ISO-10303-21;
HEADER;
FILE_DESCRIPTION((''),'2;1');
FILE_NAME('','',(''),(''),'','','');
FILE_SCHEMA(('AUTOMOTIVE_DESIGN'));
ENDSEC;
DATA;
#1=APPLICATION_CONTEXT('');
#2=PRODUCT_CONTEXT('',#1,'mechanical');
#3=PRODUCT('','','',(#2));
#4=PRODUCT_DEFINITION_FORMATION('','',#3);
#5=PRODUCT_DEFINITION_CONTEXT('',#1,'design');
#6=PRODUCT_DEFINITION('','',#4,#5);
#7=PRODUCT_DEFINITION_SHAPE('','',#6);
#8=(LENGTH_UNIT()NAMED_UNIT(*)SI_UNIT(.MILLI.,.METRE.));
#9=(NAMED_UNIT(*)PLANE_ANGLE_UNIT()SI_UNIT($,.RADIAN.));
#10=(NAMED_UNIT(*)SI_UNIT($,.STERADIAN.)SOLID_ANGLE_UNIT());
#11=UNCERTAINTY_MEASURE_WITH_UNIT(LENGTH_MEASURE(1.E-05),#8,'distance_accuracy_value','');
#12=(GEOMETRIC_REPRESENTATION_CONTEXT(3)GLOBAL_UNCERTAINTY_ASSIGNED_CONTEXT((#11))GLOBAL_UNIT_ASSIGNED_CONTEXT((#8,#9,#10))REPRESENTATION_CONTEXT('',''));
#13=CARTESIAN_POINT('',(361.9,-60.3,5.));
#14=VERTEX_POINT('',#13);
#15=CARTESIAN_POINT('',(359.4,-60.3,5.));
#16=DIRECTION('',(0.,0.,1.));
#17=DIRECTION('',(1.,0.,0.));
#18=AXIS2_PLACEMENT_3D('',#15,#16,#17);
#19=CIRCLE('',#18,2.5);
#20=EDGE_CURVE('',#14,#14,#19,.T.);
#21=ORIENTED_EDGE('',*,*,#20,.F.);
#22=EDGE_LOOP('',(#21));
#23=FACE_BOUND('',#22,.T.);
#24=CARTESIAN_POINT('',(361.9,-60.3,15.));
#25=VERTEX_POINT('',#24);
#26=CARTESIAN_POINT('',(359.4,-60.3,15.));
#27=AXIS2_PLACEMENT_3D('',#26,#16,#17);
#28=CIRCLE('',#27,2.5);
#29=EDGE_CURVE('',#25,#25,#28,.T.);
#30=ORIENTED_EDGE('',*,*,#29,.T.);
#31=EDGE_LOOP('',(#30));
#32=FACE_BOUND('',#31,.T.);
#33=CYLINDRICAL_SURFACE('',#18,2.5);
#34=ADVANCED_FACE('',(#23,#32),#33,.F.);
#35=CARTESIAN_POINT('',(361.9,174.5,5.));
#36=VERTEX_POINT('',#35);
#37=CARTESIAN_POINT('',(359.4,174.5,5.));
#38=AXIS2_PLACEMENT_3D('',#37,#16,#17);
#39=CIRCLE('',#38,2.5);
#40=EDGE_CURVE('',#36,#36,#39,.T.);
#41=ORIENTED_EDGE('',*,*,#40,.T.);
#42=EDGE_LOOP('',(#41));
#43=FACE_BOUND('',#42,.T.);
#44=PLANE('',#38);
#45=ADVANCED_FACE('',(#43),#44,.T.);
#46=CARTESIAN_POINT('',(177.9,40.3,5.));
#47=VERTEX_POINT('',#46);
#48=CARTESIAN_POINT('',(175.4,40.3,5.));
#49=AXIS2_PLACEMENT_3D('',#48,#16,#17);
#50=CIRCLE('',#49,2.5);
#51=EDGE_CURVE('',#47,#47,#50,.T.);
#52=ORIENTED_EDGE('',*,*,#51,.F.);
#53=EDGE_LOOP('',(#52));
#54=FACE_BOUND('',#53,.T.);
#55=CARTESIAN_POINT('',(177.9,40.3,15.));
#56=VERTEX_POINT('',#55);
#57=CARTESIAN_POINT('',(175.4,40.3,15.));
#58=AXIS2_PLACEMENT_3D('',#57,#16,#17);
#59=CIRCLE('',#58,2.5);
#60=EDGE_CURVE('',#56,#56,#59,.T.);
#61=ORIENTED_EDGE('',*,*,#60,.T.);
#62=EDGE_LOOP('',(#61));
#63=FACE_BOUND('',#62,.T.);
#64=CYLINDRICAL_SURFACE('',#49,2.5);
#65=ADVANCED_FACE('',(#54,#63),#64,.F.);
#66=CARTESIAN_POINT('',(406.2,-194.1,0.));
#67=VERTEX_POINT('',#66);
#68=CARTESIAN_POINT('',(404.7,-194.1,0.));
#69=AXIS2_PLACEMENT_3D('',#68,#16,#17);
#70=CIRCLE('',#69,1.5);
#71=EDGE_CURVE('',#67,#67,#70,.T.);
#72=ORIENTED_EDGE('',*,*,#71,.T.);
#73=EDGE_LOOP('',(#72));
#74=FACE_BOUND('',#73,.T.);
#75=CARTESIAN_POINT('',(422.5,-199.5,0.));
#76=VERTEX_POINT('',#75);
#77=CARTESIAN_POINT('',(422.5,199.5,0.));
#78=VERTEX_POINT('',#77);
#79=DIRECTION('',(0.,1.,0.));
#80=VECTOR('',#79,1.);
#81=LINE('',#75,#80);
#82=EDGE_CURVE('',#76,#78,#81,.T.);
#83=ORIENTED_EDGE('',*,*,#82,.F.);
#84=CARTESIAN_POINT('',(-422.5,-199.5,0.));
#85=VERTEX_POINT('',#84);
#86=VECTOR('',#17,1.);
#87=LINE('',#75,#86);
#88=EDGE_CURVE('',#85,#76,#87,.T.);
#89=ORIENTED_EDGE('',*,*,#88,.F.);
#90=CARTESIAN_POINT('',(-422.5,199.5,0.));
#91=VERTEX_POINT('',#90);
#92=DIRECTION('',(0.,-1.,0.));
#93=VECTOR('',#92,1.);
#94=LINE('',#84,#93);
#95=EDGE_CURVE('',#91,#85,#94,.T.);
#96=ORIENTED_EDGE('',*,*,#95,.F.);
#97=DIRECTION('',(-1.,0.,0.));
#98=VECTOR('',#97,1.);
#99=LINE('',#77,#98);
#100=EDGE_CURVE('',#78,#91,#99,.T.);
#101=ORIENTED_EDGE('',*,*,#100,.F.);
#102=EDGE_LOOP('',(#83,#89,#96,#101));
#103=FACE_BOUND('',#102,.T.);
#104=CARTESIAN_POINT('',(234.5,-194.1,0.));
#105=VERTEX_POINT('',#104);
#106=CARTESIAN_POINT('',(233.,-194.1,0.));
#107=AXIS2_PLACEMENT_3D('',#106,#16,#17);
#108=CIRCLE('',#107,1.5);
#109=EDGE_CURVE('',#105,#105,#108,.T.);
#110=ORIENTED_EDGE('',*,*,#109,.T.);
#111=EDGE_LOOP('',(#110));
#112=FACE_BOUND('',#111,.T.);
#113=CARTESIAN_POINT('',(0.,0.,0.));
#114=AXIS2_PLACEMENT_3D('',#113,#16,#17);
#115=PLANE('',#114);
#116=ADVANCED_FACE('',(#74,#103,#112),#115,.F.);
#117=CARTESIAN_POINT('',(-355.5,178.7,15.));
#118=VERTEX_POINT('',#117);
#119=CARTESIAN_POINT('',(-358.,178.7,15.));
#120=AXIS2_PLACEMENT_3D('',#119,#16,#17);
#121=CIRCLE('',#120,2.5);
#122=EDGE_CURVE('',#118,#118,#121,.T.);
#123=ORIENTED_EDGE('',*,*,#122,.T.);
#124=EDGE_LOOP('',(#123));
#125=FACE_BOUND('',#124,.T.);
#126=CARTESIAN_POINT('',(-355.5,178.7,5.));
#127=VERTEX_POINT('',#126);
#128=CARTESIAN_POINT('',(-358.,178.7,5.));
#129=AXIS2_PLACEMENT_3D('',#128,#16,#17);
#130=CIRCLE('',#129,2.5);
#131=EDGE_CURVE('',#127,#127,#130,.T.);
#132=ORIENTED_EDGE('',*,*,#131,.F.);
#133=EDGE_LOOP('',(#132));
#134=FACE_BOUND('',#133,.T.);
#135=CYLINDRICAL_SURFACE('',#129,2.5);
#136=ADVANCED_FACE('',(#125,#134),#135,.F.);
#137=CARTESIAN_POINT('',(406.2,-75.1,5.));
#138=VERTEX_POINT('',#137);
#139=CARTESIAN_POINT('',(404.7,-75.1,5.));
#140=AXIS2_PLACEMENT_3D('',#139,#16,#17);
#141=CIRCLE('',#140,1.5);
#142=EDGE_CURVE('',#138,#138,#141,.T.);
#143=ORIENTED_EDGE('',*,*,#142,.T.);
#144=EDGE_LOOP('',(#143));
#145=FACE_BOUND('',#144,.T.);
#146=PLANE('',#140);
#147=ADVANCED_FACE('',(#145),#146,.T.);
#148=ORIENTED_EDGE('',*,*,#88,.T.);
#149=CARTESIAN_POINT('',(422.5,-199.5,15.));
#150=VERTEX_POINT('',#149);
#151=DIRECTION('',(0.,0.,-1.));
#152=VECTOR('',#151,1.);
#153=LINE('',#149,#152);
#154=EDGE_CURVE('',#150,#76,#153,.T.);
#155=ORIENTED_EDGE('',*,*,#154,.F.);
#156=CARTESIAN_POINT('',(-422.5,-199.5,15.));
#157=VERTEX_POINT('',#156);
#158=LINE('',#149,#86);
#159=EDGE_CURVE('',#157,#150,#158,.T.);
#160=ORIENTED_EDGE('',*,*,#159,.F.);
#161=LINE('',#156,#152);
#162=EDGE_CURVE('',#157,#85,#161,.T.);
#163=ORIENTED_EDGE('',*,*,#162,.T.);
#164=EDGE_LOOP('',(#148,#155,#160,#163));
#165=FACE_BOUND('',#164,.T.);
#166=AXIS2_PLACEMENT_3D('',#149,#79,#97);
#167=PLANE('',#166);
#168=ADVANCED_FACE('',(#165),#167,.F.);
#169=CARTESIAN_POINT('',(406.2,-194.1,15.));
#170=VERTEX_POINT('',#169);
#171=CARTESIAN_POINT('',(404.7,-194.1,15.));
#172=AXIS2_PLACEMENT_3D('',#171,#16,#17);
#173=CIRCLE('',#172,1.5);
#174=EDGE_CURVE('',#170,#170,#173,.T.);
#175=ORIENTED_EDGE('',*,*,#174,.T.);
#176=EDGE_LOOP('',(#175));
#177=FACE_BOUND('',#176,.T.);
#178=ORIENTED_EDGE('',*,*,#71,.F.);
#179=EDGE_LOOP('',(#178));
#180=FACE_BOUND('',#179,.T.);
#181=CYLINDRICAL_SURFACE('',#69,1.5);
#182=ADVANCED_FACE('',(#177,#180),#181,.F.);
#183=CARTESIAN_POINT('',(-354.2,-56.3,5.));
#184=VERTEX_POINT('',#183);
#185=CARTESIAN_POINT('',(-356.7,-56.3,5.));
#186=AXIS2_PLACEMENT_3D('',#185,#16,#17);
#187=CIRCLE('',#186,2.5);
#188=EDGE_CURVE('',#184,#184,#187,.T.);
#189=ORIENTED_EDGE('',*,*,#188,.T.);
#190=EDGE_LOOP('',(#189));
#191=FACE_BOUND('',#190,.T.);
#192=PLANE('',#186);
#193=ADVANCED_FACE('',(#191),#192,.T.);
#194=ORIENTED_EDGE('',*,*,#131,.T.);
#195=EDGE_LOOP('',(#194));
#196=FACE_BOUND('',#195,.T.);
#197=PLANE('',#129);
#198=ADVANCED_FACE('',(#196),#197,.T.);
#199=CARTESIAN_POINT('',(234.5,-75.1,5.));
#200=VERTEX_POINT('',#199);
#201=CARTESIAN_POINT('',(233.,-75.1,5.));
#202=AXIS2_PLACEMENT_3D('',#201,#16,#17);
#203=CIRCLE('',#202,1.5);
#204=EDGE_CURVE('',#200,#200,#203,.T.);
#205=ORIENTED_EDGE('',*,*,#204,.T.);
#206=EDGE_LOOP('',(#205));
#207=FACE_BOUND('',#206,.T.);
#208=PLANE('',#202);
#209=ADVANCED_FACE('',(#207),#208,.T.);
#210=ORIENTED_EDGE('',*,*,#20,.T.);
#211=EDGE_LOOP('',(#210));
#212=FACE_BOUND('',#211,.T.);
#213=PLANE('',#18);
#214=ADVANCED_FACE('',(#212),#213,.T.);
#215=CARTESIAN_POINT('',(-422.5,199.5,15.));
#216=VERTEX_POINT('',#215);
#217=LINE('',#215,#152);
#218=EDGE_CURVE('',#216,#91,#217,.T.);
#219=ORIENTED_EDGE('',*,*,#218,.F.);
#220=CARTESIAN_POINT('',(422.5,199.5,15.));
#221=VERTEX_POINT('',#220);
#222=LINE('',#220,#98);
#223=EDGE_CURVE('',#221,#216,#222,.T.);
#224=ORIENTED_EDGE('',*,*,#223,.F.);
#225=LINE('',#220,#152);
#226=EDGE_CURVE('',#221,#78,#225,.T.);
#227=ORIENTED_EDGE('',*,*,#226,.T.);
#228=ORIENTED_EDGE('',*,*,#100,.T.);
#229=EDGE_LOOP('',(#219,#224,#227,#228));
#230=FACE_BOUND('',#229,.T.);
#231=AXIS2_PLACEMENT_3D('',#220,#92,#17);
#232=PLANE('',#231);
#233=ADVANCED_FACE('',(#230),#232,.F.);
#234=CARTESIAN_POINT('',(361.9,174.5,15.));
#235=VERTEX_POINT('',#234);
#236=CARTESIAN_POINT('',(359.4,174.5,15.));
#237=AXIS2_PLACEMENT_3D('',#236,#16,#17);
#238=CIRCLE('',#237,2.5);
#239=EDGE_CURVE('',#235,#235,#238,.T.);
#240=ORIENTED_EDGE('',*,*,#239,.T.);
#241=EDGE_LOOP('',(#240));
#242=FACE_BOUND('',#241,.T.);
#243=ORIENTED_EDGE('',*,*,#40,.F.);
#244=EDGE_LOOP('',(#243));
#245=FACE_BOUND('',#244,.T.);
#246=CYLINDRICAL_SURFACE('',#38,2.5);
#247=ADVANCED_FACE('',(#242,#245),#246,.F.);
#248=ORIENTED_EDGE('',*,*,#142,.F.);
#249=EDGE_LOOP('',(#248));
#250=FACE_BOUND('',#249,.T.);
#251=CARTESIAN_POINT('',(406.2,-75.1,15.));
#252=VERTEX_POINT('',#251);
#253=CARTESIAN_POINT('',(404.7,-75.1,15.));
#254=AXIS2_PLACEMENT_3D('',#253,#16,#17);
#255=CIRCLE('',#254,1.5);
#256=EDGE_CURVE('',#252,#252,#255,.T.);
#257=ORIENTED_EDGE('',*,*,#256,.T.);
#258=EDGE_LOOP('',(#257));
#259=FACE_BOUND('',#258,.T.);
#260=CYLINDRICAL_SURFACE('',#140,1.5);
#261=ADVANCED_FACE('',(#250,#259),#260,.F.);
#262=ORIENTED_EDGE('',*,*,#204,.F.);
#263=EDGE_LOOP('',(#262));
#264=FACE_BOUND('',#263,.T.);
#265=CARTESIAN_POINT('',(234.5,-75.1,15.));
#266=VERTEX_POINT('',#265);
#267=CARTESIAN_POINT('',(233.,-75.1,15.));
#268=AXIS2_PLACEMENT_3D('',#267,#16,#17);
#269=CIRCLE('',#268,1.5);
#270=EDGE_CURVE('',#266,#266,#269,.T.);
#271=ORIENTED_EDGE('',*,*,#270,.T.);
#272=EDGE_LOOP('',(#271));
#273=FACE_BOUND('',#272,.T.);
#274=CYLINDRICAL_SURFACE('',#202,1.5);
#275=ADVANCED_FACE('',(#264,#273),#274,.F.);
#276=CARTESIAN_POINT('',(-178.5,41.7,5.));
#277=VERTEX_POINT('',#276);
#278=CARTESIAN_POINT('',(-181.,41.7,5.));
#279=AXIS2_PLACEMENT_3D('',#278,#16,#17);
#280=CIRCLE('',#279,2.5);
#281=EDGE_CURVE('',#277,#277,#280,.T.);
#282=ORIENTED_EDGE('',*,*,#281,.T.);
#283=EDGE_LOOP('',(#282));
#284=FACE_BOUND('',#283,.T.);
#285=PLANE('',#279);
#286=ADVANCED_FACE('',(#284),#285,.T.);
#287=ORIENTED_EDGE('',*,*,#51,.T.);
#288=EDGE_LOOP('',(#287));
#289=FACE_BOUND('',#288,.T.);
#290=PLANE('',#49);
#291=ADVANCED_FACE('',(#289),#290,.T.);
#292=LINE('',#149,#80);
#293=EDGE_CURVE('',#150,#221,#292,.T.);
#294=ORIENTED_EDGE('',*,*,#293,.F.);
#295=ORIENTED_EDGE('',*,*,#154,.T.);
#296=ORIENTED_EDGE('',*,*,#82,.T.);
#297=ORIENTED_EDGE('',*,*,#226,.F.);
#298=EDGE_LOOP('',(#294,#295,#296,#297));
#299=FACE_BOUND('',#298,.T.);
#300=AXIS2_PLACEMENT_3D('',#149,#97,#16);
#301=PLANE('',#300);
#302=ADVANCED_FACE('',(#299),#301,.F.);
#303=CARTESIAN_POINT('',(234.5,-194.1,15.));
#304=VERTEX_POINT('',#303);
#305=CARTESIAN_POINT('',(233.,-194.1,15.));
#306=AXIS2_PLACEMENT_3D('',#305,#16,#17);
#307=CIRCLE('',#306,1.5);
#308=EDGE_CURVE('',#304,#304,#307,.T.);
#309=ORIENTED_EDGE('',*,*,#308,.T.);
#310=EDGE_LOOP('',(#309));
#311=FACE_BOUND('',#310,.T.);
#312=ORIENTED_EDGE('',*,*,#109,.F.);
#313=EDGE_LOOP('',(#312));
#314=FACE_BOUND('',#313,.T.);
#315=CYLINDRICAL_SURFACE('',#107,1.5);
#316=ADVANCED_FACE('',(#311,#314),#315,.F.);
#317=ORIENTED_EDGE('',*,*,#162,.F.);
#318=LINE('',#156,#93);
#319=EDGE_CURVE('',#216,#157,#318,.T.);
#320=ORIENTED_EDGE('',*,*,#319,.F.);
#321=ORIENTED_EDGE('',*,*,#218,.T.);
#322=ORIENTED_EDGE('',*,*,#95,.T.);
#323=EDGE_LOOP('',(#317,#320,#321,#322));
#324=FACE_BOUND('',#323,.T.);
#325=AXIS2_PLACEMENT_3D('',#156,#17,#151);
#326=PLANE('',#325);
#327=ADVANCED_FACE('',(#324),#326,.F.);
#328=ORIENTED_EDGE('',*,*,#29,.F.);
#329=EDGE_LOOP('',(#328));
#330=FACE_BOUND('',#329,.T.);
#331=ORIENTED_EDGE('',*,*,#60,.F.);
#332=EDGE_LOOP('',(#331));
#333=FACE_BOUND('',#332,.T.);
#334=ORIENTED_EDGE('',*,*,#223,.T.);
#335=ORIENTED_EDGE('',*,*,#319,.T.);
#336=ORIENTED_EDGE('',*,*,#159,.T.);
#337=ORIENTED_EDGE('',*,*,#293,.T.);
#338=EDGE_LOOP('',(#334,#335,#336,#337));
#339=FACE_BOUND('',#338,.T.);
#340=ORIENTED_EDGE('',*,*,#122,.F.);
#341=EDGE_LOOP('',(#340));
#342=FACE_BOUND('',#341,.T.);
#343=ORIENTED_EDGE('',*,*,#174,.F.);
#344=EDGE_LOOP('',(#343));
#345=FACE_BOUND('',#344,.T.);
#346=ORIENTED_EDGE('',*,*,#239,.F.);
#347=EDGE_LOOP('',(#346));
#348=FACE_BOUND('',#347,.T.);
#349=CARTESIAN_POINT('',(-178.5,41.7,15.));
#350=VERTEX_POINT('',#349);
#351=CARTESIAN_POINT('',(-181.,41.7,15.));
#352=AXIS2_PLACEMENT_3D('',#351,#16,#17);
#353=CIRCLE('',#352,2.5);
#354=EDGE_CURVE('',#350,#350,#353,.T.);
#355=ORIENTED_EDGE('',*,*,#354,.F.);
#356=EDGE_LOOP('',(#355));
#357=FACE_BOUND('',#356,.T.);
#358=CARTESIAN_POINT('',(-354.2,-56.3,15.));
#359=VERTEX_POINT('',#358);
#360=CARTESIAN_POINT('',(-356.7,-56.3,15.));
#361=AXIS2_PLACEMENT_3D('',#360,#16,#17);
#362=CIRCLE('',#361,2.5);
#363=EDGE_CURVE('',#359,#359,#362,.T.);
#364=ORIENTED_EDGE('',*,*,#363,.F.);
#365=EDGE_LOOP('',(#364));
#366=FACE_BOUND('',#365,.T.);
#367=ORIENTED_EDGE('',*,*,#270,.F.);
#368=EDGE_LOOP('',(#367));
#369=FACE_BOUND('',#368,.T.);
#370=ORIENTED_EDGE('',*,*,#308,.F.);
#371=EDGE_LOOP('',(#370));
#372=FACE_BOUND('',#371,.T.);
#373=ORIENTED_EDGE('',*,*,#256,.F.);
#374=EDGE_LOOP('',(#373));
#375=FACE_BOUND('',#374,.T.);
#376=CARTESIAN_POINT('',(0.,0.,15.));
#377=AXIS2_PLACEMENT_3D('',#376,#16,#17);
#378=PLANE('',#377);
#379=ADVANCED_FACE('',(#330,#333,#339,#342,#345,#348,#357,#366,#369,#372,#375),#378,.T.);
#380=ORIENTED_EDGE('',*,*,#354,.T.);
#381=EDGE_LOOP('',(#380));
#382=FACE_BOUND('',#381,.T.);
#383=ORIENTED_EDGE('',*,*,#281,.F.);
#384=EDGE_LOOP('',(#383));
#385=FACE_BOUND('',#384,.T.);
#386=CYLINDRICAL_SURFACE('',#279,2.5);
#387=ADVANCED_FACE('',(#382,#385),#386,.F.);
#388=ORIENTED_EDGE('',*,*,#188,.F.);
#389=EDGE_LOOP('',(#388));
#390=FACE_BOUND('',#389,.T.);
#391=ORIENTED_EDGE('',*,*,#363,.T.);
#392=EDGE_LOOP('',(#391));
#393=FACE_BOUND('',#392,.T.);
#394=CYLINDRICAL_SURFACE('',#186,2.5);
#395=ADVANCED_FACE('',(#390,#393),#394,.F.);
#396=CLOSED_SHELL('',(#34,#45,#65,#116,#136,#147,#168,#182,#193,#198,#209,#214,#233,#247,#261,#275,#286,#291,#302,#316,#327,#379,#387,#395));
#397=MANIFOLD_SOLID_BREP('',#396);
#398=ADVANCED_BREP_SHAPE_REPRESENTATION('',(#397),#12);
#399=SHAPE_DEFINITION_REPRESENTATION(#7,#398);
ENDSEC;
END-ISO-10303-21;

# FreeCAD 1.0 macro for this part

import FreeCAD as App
import Part
import Sketcher
from FreeCAD import Vector
Q = App.Units.Quantity

doc = App.newDocument("Part")
body = doc.addObject("PartDesign::Body", "Body")

# Sketch on XY plane
sketch1 = doc.addObject("Sketcher::SketchObject", "Sketch")
body.addObject(sketch1)
sketch1.AttachmentSupport = (doc.XY_Plane, [""])
sketch1.MapMode = "FlatFace"
sketch1.addGeometry([
    Part.LineSegment(Vector(-422.5, 199.5, 0), Vector(-422.5, -199.5, 0)),
    Part.LineSegment(Vector(-422.5, -199.5, 0), Vector(422.5, -199.5, 0)),
    Part.LineSegment(Vector(422.5, -199.5, 0), Vector(422.5, 199.5, 0)),
    Part.LineSegment(Vector(422.5, 199.5, 0), Vector(-422.5, 199.5, 0)),
], False)
sketch1.addConstraint([
    Sketcher.Constraint("Coincident", 0, 2, 1, 1),
    Sketcher.Constraint("Coincident", 1, 2, 2, 1),
    Sketcher.Constraint("Coincident", 2, 2, 3, 1),
    Sketcher.Constraint("Coincident", 3, 2, 0, 1),
    Sketcher.Constraint("Vertical", 0),
    Sketcher.Constraint("Horizontal", 1),
    Sketcher.Constraint("Vertical", 2),
    Sketcher.Constraint("Horizontal", 3),
    Sketcher.Constraint("Symmetric", 0, 2, 2, 2, -1, 1),
    Sketcher.Constraint("DistanceX", 1, 1, 1, 2, Q("845 mm")),
    Sketcher.Constraint("DistanceY", 0, 2, 0, 1, Q("399 mm")),
])
pad1 = doc.addObject("PartDesign::Pad", "Pad")
body.addObject(pad1)
pad1.Profile = sketch1
pad1.Length = 15

# Sketch on XY plane
sketch2 = doc.addObject("Sketcher::SketchObject", "Sketch001")
body.addObject(sketch2)
sketch2.AttachmentSupport = (doc.XY_Plane, [""])
sketch2.MapMode = "FlatFace"
sketch2.AttachmentOffset = App.Placement(Vector(0, 0, 15), App.Rotation())
sketch2.addGeometry([
    Part.Circle(Vector(-358, 178.7, 0), Vector(0, 0, 1), 2.5),  # 0
    Part.Circle(Vector(-356.7, -56.3, 0), Vector(0, 0, 1), 2.5),  # 1
    Part.Circle(Vector(-181, 41.7, 0), Vector(0, 0, 1), 2.5),  # 2
    Part.Circle(Vector(359.4, -60.3, 0), Vector(0, 0, 1), 2.5),  # 3
    Part.Circle(Vector(359.4, 174.5, 0), Vector(0, 0, 1), 2.5),  # 4
    Part.Circle(Vector(175.4, 40.3, 0), Vector(0, 0, 1), 2.5),  # 5
], False)
sketch2.addConstraint([
    Sketcher.Constraint("Equal", 0, 1),
    Sketcher.Constraint("Equal", 1, 2),
    Sketcher.Constraint("Equal", 2, 3),
    Sketcher.Constraint("Equal", 3, 4),
    Sketcher.Constraint("Equal", 4, 5),
    Sketcher.Constraint("Vertical", 3, 3, 4, 3),
    Sketcher.Constraint("Diameter", 0, Q("5 mm")),
    Sketcher.Constraint("DistanceX", 0, 3, -1, 1, Q("358 mm")),
    Sketcher.Constraint("DistanceX", 2, 3, -1, 1, Q("181 mm")),
    Sketcher.Constraint("DistanceY", 1, 3, 0, 3, Q("235 mm")),
    Sketcher.Constraint("DistanceY", 1, 3, 2, 3, Q("98 mm")),
    Sketcher.Constraint("DistanceY", 3, 3, 2, 3, Q("102 mm")),
    Sketcher.Constraint("DistanceX", 5, 3, 3, 3, Q("184 mm")),
    Sketcher.Constraint("DistanceY", -1, 1, 0, 3, Q("178.7 mm")),
    Sketcher.Constraint("DistanceX", 1, 3, -1, 1, Q("356.7 mm")),
    Sketcher.Constraint("DistanceX", -1, 1, 3, 3, Q("359.4 mm")),
    Sketcher.Constraint("DistanceY", -1, 1, 4, 3, Q("174.5 mm")),
    Sketcher.Constraint("DistanceY", -1, 1, 5, 3, Q("40.3 mm")),
])
pocket1 = doc.addObject("PartDesign::Pocket", "Pocket")
body.addObject(pocket1)
pocket1.Profile = sketch2
pocket1.Length = 10

# Sketch on XY plane
sketch3 = doc.addObject("Sketcher::SketchObject", "Sketch002")
body.addObject(sketch3)
sketch3.AttachmentSupport = (doc.XY_Plane, [""])
sketch3.MapMode = "FlatFace"
sketch3.AttachmentOffset = App.Placement(Vector(0, 0, 15), App.Rotation())
sketch3.addGeometry([
    Part.Circle(Vector(233, -75.1, 0), Vector(0, 0, 1), 1.5),
    Part.Circle(Vector(404.7, -75.1, 0), Vector(0, 0, 1), 1.5),
], False)
sketch3.addConstraint([
    Sketcher.Constraint("Equal", 0, 1),
    Sketcher.Constraint("Horizontal", 0, 3, 1, 3),
    Sketcher.Constraint("Diameter", 0, Q("3 mm")),
    Sketcher.Constraint("DistanceX", -1, 1, 0, 3, Q("233 mm")),
    Sketcher.Constraint("DistanceY", 0, 3, -1, 1, Q("75.1 mm")),
    Sketcher.Constraint("DistanceX", -1, 1, 1, 3, Q("404.7 mm")),
])
pocket2 = doc.addObject("PartDesign::Pocket", "Pocket001")
body.addObject(pocket2)
pocket2.Profile = sketch3
pocket2.Length = 10

# Sketch on XY plane
sketch4 = doc.addObject("Sketcher::SketchObject", "Sketch003")
body.addObject(sketch4)
sketch4.AttachmentSupport = (doc.XY_Plane, [""])
sketch4.MapMode = "FlatFace"
sketch4.AttachmentOffset = App.Placement(Vector(0, 0, 15), App.Rotation())
sketch4.addGeometry([
    Part.Circle(Vector(233, -194.1, 0), Vector(0, 0, 1), 1.5),
    Part.Circle(Vector(404.7, -194.1, 0), Vector(0, 0, 1), 1.5),
], False)
sketch4.addConstraint([
    Sketcher.Constraint("Equal", 0, 1),
    Sketcher.Constraint("Horizontal", 0, 3, 1, 3),
    Sketcher.Constraint("Diameter", 0, Q("3 mm")),
    Sketcher.Constraint("DistanceX", -1, 1, 0, 3, Q("233 mm")),
    Sketcher.Constraint("DistanceY", 0, 3, -1, 1, Q("194.1 mm")),
    Sketcher.Constraint("DistanceX", -1, 1, 1, 3, Q("404.7 mm")),
])
pocket3 = doc.addObject("PartDesign::Pocket", "Pocket002")
body.addObject(pocket3)
pocket3.Profile = sketch4
pocket3.Type = "ThroughAll"

doc.recompute()
